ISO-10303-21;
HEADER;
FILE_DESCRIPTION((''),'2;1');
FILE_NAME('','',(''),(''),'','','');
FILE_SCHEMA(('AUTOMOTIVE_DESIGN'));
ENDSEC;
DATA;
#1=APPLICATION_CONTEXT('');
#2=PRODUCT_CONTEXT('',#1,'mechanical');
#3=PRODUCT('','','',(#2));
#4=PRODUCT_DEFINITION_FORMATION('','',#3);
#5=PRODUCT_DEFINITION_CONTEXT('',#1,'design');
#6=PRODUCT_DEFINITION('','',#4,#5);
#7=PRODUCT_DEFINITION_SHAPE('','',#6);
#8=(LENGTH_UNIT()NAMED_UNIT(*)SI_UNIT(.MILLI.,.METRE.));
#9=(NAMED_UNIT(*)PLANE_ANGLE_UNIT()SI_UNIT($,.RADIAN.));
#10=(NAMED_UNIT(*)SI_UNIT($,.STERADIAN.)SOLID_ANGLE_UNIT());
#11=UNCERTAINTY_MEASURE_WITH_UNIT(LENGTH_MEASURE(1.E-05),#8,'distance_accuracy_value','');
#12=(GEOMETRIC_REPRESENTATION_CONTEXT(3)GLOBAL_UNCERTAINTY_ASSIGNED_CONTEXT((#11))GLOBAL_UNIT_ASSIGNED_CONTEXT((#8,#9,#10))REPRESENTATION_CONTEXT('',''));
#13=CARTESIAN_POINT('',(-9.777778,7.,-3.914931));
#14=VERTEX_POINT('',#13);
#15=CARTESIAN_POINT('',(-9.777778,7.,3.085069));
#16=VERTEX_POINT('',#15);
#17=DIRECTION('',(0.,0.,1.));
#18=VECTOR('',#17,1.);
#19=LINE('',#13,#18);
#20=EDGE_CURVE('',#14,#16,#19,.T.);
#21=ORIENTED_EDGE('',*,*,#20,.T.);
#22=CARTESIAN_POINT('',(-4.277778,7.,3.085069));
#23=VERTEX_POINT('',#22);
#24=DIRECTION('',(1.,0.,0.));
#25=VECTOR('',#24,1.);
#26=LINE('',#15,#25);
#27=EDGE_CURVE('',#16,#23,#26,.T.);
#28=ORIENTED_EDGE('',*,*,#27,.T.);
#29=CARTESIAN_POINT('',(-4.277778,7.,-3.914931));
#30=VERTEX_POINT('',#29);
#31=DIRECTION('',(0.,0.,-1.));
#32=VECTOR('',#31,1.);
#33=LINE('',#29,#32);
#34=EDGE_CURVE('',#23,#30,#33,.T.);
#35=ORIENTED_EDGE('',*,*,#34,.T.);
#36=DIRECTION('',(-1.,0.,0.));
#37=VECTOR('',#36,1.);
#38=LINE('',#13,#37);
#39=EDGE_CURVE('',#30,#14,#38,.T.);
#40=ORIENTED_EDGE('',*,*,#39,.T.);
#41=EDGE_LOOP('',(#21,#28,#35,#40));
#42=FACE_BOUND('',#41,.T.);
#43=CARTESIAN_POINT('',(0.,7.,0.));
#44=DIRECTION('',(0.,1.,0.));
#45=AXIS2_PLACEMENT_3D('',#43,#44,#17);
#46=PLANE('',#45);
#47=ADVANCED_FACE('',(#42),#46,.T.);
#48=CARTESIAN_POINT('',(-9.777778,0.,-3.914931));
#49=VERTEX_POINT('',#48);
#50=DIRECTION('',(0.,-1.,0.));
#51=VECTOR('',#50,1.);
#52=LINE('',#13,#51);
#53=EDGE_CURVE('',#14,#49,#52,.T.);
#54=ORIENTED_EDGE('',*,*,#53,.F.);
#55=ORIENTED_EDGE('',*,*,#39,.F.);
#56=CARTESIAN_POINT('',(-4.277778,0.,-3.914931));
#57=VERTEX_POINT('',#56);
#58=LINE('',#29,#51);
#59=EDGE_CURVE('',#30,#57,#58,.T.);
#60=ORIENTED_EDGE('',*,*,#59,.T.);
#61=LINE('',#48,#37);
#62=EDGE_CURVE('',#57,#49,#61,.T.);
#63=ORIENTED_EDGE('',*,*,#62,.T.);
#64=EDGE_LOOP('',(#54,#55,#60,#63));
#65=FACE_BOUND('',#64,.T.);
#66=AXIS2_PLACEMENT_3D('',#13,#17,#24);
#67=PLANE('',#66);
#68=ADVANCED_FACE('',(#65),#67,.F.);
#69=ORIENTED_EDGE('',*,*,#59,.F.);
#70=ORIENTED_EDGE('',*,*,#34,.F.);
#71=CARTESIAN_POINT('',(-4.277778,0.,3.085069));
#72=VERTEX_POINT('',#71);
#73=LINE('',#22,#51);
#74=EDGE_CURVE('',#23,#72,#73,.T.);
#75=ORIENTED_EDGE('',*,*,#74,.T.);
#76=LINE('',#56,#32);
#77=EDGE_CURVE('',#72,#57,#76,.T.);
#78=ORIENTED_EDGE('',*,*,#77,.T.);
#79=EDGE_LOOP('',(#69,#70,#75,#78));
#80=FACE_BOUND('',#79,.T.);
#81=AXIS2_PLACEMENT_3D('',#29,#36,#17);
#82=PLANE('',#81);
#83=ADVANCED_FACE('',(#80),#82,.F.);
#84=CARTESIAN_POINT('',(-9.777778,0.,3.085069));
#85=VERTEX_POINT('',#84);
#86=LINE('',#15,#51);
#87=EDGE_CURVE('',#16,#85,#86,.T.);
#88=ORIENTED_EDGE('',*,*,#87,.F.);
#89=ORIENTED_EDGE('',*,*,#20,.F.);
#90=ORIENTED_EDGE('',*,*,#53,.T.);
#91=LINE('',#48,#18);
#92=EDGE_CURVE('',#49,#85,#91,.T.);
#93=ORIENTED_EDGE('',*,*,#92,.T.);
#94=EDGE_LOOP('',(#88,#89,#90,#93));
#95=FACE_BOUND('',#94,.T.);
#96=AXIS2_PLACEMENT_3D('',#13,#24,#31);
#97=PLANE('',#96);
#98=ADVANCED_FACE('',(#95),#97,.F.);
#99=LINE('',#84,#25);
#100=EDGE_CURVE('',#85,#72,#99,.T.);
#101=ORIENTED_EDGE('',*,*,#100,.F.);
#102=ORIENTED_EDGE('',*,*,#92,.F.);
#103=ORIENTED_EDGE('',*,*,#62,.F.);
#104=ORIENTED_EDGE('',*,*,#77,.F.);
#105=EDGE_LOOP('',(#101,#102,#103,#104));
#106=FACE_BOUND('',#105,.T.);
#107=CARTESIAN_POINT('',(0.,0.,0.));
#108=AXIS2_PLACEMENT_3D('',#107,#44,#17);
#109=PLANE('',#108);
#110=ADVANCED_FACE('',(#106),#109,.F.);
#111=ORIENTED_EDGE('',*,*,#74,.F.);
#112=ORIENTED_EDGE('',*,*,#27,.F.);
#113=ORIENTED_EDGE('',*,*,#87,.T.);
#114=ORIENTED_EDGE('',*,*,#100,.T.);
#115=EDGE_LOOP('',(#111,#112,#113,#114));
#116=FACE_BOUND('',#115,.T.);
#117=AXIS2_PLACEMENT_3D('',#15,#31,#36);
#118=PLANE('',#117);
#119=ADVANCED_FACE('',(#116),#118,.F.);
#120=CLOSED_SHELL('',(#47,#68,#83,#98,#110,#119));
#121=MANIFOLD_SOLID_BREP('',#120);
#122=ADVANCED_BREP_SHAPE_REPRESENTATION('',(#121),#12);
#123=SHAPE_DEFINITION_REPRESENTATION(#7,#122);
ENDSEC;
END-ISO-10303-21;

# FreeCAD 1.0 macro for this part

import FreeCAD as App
import Part
import Sketcher

V = App.Vector
Q = App.Units.Quantity

doc = App.newDocument("Part")
body = doc.addObject("PartDesign::Body", "Body")

sketch1 = body.newObject("Sketcher::SketchObject", "Sketch")
sketch1.AttachmentSupport = (doc.getObject("XZ_Plane"), [""])
sketch1.MapMode = "FlatFace"
sketch1.addGeometry([
    Part.LineSegment(V(-9.777778, -3.914931, 0), V(-9.777778, 3.085069, 0)),
    Part.LineSegment(V(-9.777778, 3.085069, 0), V(-4.277778, 3.085069, 0)),
    Part.LineSegment(V(-4.277778, 3.085069, 0), V(-4.277778, -3.914931, 0)),
    Part.LineSegment(V(-4.277778, -3.914931, 0), V(-9.777778, -3.914931, 0)),
], False)
sketch1.addConstraint([
    Sketcher.Constraint("Coincident", 0, 2, 1, 1),
    Sketcher.Constraint("Coincident", 1, 2, 2, 1),
    Sketcher.Constraint("Coincident", 2, 2, 3, 1),
    Sketcher.Constraint("Coincident", 3, 2, 0, 1),
    Sketcher.Constraint("Vertical", 0),
    Sketcher.Constraint("Horizontal", 1),
    Sketcher.Constraint("Vertical", 2),
    Sketcher.Constraint("Horizontal", 3),
    Sketcher.Constraint("DistanceY", 0, 1, 0, 2, Q("7 mm")),
    Sketcher.Constraint("DistanceX", 1, 1, 1, 2, Q("5.5 mm")),
    Sketcher.Constraint("DistanceY", -1, 1, 0, 2, Q("3.085069 mm")),
    Sketcher.Constraint("DistanceX", 0, 2, -1, 1, Q("9.777778 mm")),
])
pad1 = body.newObject("PartDesign::Pad", "Pad")
pad1.Profile = sketch1
pad1.Length = 7
pad1.Reversed = True

doc.recompute()
